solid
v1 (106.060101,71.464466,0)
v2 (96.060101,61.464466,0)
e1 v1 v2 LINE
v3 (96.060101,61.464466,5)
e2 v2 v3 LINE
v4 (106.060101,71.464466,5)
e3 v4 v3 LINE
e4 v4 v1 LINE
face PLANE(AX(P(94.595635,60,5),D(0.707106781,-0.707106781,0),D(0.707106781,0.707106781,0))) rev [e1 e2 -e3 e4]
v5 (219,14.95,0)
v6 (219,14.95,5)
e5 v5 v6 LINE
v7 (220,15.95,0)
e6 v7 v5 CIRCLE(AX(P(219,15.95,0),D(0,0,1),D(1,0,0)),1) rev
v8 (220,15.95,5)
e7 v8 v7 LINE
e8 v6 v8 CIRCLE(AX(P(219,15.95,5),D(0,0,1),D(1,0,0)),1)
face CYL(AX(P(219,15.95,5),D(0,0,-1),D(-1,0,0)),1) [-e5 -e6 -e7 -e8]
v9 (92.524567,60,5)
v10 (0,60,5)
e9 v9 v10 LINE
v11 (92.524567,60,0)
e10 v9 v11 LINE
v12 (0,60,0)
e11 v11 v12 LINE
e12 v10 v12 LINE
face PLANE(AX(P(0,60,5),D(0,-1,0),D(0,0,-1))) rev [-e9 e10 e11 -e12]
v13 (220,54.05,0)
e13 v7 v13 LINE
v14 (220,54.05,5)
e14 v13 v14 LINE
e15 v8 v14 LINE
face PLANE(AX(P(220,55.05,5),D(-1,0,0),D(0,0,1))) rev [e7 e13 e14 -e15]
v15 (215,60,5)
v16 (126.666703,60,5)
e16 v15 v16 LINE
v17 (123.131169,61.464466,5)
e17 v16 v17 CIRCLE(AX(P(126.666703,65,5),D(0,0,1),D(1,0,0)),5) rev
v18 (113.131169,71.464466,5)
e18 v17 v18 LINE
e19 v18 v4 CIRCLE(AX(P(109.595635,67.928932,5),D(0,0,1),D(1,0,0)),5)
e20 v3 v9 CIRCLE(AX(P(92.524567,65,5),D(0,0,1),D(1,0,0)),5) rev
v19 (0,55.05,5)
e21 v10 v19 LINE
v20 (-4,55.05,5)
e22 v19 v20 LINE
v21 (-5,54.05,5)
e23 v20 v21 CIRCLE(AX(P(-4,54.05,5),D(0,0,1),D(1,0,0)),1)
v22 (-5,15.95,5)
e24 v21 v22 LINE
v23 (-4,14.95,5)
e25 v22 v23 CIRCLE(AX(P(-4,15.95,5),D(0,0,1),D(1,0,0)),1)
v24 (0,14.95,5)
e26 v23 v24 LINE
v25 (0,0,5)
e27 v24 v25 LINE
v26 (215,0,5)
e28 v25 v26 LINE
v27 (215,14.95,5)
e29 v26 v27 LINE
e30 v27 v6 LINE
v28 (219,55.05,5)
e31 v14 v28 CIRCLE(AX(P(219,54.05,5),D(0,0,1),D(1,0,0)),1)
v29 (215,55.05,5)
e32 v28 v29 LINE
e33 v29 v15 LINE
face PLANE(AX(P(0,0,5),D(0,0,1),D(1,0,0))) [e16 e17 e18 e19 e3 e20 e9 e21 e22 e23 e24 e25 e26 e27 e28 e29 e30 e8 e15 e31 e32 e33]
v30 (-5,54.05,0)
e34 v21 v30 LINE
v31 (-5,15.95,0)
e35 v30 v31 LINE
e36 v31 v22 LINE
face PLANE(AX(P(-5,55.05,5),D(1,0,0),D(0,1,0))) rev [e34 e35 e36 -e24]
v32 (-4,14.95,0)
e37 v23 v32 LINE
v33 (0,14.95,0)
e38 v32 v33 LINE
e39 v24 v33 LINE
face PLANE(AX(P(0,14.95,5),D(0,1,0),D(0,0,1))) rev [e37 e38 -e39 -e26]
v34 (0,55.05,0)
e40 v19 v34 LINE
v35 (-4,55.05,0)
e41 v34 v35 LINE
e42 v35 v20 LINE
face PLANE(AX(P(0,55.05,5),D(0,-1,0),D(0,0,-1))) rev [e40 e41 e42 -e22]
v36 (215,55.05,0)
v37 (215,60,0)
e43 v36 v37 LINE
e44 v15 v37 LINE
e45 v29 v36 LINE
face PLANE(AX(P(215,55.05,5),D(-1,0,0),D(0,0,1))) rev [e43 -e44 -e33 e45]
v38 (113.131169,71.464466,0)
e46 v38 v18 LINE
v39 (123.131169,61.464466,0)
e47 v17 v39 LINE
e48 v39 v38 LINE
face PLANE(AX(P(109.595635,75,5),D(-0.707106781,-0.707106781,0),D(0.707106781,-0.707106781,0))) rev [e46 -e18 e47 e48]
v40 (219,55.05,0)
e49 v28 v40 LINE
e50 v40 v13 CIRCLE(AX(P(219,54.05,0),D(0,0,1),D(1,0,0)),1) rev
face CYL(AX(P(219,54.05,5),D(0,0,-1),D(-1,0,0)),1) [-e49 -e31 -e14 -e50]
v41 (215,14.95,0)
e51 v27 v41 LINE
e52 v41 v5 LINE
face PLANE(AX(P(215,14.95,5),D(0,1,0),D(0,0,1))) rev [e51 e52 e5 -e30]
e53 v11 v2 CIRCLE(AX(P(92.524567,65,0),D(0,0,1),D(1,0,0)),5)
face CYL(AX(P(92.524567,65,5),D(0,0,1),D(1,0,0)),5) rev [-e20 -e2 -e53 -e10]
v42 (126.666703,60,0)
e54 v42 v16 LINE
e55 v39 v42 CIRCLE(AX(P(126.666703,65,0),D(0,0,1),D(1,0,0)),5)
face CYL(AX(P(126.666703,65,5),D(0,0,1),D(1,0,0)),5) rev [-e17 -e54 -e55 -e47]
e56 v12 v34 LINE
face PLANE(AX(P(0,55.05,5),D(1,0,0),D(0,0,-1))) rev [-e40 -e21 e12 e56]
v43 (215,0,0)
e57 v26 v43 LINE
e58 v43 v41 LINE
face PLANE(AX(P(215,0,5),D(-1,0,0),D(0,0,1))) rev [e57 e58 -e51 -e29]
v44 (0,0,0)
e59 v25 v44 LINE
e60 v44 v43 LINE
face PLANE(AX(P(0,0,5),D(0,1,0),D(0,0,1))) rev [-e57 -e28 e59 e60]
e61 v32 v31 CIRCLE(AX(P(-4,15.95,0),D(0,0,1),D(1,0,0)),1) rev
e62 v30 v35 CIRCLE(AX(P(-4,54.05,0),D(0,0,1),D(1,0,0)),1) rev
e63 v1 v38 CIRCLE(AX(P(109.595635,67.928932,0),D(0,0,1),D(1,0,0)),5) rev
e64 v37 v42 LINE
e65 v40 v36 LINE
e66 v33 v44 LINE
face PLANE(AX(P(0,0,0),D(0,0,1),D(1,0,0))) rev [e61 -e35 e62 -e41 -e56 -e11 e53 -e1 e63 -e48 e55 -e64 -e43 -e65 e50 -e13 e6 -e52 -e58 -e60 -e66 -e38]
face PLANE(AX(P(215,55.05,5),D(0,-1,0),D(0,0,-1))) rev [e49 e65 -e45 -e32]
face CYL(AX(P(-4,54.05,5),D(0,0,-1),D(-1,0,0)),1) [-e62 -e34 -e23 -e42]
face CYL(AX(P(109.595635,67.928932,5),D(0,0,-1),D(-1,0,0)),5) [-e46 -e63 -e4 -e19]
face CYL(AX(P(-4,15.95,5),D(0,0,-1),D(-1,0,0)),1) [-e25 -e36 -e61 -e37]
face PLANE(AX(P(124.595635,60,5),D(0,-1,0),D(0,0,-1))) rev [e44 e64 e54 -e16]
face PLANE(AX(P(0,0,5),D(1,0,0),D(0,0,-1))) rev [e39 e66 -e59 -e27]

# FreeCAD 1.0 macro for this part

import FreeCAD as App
import Part
import Sketcher

V = App.Vector
Q = App.Units.Quantity


def edges_at(feature, points):
    """Names of the edges that pass closest to the given points."""
    edges = feature.Shape.Edges
    near = lambda p: min(range(len(edges)), key=lambda i: edges[i].distToShape(Part.Vertex(*p))[0])
    return sorted({f"Edge{near(p) + 1}" for p in points})


def add_polygon(sketch, points):
    """Adds a closed chain of lines whose ends are joined by coincident constraints."""
    first, n = sketch.GeometryCount, len(points)
    for a, b in zip(points, points[1:] + points[:1]):
        sketch.addGeometry(Part.LineSegment(App.Vector(*a, 0), App.Vector(*b, 0)), False)
    for i in range(n):
        sketch.addConstraint(Sketcher.Constraint("Coincident", first + i, 2, first + (i + 1) % n, 1))

doc = App.newDocument("Part")
body = doc.addObject("PartDesign::Body", "Body")

# Sketch on XY plane
sketch1 = body.newObject("Sketcher::SketchObject", "Sketch")
sketch1.AttachmentSupport = (doc.getObject("XY_Plane"), [""])
sketch1.MapMode = "FlatFace"
add_polygon(sketch1, [(215, 55), (215, 60), (124.6, 60), (109.6, 75), (94.6, 60), (0, 60), (0, 55), (-5, 55), (-5, 14.9), (0, 14.9), (0, 0), (215, 0), (215, 14.9), (220, 14.9), (220, 55)])  # lines 0-14
sketch1.addConstraint([
    Sketcher.Constraint("Vertical", 0),
    Sketcher.Constraint("Horizontal", 1),
    Sketcher.Constraint("Horizontal", 4),
    Sketcher.Constraint("Vertical", 5),
    Sketcher.Constraint("Horizontal", 6),
    Sketcher.Constraint("Vertical", 7),
    Sketcher.Constraint("Horizontal", 8),
    Sketcher.Constraint("Vertical", 9),
    Sketcher.Constraint("Horizontal", 10),
    Sketcher.Constraint("Vertical", 11),
    Sketcher.Constraint("Horizontal", 12),
    Sketcher.Constraint("Vertical", 13),
    Sketcher.Constraint("Horizontal", 14),
    Sketcher.Constraint("Coincident", 9, 2, -1, 1),
    Sketcher.Constraint("PointOnObject", 4, 2, -2),
    Sketcher.Constraint("Perpendicular", 2, 3),
    Sketcher.Constraint("Horizontal", 1, 2, 3, 2),
    Sketcher.Constraint("Horizontal", 8, 2, 11, 2),
    Sketcher.Constraint("Horizontal", 6, 2, 13, 2),
    Sketcher.Constraint("Vertical", 0, 2, 10, 2),
    Sketcher.Constraint("Equal", 8, 12),
    Sketcher.Constraint("Equal", 2, 3),
    Sketcher.Constraint("DistanceX", 6, 2, 6, 1, Q("5 mm")),
    Sketcher.Constraint("DistanceX", 10, 1, 10, 2, Q("215 mm")),
    Sketcher.Constraint("DistanceY", 7, 2, 7, 1, Q("40.1 mm")),
    Sketcher.Constraint("DistanceY", -1, 1, 0, 2, Q("60 mm")),
    Sketcher.Constraint("DistanceY", -1, 1, 2, 2, Q("75 mm")),
    Sketcher.Constraint("DistanceY", 0, 1, 0, 2, Q("4.95 mm")),
    Sketcher.Constraint("DistanceX", 1, 2, 1, 1, Q("90.404365 mm")),
])
pad1 = body.newObject("PartDesign::Pad", "Pad")
pad1.Profile = sketch1
pad1.Length = 5
doc.recompute()

fillet = body.newObject("PartDesign::Fillet", "Fillet")
fillet.Base = (pad1, edges_at(pad1, [(94.596, 60, 2.5), (109.596, 75, 2.5), (124.596, 60, 2.5)]))
fillet.Radius = 5
doc.recompute()

fillet2 = body.newObject("PartDesign::Fillet", "Fillet001")
fillet2.Base = (fillet, edges_at(fillet, [
    (-5, 14.95, 2.5),
    (-5, 55.05, 2.5),
    (220, 55.05, 2.5),
    (220, 14.95, 2.5),
]))
fillet2.Radius = 1

doc.recompute()
